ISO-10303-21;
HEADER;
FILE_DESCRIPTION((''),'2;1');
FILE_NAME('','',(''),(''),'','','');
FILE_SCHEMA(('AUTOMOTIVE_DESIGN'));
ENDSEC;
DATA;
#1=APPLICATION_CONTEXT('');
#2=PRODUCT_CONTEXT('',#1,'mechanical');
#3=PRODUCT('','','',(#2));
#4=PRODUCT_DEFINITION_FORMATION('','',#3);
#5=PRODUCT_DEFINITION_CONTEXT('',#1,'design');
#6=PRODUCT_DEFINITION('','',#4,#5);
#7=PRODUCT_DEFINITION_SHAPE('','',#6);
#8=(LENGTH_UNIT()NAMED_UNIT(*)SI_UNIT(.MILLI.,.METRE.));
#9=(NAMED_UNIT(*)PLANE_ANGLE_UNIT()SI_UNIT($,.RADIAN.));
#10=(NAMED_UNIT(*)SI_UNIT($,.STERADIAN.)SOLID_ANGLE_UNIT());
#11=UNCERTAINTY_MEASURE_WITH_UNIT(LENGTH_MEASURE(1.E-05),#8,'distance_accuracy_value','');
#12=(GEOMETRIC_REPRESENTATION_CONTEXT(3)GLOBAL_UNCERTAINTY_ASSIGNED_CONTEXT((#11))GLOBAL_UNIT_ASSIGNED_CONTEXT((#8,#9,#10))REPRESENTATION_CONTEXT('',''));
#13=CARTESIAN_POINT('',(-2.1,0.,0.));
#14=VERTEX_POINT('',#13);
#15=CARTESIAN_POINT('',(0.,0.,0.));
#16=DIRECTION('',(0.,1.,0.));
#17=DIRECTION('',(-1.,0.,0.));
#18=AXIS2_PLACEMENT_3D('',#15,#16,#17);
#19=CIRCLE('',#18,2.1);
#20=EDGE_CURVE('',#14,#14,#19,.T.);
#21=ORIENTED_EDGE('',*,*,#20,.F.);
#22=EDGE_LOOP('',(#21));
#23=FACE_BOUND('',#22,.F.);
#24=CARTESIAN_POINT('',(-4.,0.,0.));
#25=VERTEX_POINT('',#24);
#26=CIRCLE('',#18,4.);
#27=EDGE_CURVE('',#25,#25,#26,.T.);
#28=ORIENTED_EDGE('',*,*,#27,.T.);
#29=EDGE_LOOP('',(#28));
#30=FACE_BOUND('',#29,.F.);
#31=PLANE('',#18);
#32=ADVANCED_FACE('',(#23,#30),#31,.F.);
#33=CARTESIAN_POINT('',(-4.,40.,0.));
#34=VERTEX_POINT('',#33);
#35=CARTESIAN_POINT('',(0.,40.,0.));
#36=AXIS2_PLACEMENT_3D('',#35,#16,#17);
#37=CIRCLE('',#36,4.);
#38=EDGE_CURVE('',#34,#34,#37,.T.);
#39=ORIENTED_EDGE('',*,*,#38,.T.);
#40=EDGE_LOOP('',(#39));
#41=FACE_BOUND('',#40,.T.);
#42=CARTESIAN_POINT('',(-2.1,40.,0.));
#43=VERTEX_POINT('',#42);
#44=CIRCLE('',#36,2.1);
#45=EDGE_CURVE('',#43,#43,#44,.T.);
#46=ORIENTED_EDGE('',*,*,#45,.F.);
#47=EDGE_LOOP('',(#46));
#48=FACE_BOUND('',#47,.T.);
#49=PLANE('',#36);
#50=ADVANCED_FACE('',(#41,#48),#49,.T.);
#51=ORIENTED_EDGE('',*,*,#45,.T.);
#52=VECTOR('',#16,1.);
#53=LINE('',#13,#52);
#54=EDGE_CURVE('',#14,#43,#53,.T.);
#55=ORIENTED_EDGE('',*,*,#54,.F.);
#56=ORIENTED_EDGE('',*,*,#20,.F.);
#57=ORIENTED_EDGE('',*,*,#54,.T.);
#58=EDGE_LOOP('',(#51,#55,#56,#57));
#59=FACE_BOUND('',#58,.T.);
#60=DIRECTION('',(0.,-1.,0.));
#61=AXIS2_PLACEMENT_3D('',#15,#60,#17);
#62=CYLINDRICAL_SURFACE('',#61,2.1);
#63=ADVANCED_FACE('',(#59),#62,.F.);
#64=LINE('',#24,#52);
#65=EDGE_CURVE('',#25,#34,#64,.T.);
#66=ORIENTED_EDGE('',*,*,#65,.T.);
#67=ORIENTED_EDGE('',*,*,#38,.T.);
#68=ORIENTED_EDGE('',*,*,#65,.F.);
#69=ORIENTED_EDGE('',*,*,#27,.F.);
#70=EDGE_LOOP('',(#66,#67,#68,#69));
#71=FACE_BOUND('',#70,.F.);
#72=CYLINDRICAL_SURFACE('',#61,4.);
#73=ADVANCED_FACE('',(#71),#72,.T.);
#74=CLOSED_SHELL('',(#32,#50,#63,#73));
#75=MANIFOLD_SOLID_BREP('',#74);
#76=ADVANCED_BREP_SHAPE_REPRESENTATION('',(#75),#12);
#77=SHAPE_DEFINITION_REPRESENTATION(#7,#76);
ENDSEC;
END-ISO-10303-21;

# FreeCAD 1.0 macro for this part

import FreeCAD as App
import Part
import Sketcher

V = App.Vector
Q = App.Units.Quantity

doc = App.newDocument("Part")
body = doc.addObject("PartDesign::Body", "Body")

# Sketch on XZ plane
sketch1 = body.newObject("Sketcher::SketchObject", "Sketch")
sketch1.AttachmentSupport = (doc.getObject("XZ_Plane"), [""])
sketch1.MapMode = "FlatFace"
sketch1.addGeometry([
    Part.Circle(V(0, 0, 0), V(0, 0, 1), 4),
    Part.Circle(V(0, 0, 0), V(0, 0, 1), 2.1),
], False)
sketch1.addConstraint([
    Sketcher.Constraint("Coincident", 0, 3, -1, 1),
    Sketcher.Constraint("Coincident", 1, 3, -1, 1),
    Sketcher.Constraint("Diameter", 1, Q("4.2 mm")),
    Sketcher.Constraint("Diameter", 0, Q("8 mm")),
])
pad1 = body.newObject("PartDesign::Pad", "Pad")
pad1.Profile = sketch1
pad1.Length = 40
pad1.Reversed = True

doc.recompute()
